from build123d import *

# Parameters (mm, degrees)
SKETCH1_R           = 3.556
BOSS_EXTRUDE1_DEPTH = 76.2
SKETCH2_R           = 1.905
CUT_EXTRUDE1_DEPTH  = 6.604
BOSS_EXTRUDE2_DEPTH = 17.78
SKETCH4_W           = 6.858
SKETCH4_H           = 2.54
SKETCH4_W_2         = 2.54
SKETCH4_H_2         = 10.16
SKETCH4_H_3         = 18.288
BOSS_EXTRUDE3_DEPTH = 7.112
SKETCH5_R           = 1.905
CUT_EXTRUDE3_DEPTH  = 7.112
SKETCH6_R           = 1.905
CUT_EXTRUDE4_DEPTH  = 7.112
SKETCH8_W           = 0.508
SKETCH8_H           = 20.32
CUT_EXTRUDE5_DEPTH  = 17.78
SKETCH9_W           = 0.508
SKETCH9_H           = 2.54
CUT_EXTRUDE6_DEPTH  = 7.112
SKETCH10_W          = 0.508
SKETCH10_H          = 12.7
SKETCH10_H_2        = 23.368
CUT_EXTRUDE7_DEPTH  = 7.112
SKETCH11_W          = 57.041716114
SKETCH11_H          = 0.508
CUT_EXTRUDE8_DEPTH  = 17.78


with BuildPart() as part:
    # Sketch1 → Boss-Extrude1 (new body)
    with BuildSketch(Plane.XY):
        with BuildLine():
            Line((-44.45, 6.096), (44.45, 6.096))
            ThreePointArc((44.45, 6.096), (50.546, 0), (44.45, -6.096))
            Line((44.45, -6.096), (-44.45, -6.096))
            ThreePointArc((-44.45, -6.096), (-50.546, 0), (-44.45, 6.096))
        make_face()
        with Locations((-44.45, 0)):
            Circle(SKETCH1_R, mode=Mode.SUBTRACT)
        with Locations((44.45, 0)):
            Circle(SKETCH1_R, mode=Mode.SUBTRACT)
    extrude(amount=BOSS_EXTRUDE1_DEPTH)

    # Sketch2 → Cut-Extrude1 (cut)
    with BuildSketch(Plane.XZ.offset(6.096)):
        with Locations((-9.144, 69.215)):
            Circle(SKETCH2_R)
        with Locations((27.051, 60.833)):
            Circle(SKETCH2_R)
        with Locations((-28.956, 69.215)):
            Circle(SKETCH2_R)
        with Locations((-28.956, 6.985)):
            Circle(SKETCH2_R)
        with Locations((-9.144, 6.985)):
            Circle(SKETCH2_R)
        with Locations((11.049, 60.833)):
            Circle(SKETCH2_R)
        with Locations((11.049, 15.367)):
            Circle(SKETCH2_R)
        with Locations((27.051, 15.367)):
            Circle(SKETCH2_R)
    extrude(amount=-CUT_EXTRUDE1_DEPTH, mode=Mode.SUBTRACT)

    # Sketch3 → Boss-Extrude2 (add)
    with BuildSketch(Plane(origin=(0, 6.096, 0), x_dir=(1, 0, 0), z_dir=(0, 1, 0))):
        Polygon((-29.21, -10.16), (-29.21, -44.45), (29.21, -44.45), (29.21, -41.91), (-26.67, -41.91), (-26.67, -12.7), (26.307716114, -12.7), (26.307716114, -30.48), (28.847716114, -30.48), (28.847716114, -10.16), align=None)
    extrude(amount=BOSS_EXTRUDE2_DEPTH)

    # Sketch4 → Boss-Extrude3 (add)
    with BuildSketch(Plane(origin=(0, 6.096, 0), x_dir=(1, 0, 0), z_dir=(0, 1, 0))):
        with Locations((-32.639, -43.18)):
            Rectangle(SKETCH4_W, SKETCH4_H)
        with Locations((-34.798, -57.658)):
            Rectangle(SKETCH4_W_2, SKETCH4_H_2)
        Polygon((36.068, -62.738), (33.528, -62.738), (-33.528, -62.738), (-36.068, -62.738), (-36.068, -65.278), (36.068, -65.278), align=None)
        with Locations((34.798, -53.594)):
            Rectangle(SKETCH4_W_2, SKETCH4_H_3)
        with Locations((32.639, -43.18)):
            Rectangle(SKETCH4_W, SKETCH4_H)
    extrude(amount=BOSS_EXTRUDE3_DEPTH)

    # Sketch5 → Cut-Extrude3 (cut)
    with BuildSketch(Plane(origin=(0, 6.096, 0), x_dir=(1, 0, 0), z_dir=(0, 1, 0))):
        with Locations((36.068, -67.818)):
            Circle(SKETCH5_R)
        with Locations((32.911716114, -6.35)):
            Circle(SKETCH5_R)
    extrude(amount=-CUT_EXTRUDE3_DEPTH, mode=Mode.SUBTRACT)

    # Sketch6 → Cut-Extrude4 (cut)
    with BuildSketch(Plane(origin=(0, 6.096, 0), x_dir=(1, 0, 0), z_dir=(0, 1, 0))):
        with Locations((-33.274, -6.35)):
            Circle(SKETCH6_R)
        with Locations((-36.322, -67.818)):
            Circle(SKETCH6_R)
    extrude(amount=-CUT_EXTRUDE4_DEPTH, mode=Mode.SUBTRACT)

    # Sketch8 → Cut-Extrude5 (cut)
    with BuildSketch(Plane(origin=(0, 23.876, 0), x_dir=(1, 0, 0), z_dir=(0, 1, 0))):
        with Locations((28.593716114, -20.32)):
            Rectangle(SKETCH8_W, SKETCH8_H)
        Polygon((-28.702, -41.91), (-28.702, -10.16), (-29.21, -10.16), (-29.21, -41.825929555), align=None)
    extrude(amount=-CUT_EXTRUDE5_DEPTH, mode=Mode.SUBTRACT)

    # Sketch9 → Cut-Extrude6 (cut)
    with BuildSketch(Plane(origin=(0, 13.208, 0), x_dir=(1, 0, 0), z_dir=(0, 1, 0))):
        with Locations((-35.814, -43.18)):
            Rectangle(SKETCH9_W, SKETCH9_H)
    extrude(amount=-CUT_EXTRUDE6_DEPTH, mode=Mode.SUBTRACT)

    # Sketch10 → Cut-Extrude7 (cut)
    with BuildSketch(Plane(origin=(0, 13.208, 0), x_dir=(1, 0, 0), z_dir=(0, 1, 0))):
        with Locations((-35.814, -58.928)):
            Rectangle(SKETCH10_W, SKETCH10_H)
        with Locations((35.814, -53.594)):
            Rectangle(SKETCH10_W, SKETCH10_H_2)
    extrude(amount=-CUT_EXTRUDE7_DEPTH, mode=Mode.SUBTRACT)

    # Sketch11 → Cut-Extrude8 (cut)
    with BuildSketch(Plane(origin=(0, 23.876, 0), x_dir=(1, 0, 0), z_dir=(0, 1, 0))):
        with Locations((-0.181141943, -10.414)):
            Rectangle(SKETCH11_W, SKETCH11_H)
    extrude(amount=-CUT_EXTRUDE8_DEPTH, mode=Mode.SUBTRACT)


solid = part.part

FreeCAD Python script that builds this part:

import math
import FreeCAD as App
import Part
import Sketcher
Q = App.Units.Quantity


def add_polygon(sketch, points):
    """Adds a closed chain of lines whose ends are joined by coincident constraints."""
    first, n = sketch.GeometryCount, len(points)
    for a, b in zip(points, points[1:] + points[:1]):
        sketch.addGeometry(Part.LineSegment(App.Vector(*a, 0), App.Vector(*b, 0)), False)
    for i in range(n):
        sketch.addConstraint(Sketcher.Constraint("Coincident", first + i, 2, first + (i + 1) % n, 1))

doc = App.newDocument("Part")
body = doc.addObject("PartDesign::Body", "Body")

# Sketch on XY plane
sketch1 = body.newObject("Sketcher::SketchObject", "Sketch")
sketch1.AttachmentSupport = (doc.getObject("XY_Plane"), [""])
sketch1.MapMode = "FlatFace"
sketch1.addGeometry(Part.LineSegment(App.Vector(44.5, 6.1, 0), App.Vector(-44.5, 6.1, 0)), False)
sketch1.addGeometry(Part.ArcOfCircle(Part.Circle(App.Vector(-44.5, 0, 0), App.Vector(0, 0, 1), 6.1), math.radians(90), math.radians(270)), False)
sketch1.addGeometry(Part.LineSegment(App.Vector(-44.5, -6.1, 0), App.Vector(44.5, -6.1, 0)), False)
sketch1.addGeometry(Part.ArcOfCircle(Part.Circle(App.Vector(44.5, 0, 0), App.Vector(0, 0, 1), 6.1), math.radians(-90), math.radians(90)), False)
sketch1.addGeometry(Part.Circle(App.Vector(44.5, 0, 0), App.Vector(0, 0, 1), 3.6), False)
sketch1.addGeometry(Part.Circle(App.Vector(-44.5, 0, 0), App.Vector(0, 0, 1), 3.6), False)
sketch1.addConstraint(Sketcher.Constraint("Tangent", 0, 2, 1, 1))
sketch1.addConstraint(Sketcher.Constraint("Tangent", 1, 2, 2, 1))
sketch1.addConstraint(Sketcher.Constraint("Tangent", 2, 2, 3, 1))
sketch1.addConstraint(Sketcher.Constraint("Tangent", 3, 2, 0, 1))
sketch1.addConstraint(Sketcher.Constraint("Horizontal", 0))
sketch1.addConstraint(Sketcher.Constraint("Horizontal", 2))
sketch1.addConstraint(Sketcher.Constraint("Coincident", 4, 3, 3, 3))
sketch1.addConstraint(Sketcher.Constraint("Coincident", 5, 3, 1, 3))
sketch1.addConstraint(Sketcher.Constraint("Equal", 4, 5))
sketch1.addConstraint(Sketcher.Constraint("Symmetric", 1, 3, 3, 3, -1, 1))
sketch1.addConstraint(Sketcher.Constraint("Diameter", 4, Q("0.28 in")))
sketch1.addConstraint(Sketcher.Constraint("Radius", 1, Q("0.24 in")))
sketch1.addConstraint(Sketcher.Constraint("DistanceX", 0, 2, 0, 1, Q("3.5 in")))
pad1 = body.newObject("PartDesign::Pad", "Pad")
pad1.Profile = sketch1
pad1.Length = Q("3 in")

# Sketch on XZ plane
sketch2 = body.newObject("Sketcher::SketchObject", "Sketch001")
sketch2.AttachmentSupport = (doc.getObject("XZ_Plane"), [""])
sketch2.MapMode = "FlatFace"
sketch2.AttachmentOffset = App.Placement(App.Vector(0, 0, 0.24 * 25.4), App.Rotation())
sketch2.addGeometry(Part.Circle(App.Vector(-9.1, 69.2, 0), App.Vector(0, 0, 1), 1.9), False)
sketch2.addGeometry(Part.Circle(App.Vector(27.1, 60.8, 0), App.Vector(0, 0, 1), 1.9), False)
sketch2.addGeometry(Part.Circle(App.Vector(-29, 69.2, 0), App.Vector(0, 0, 1), 1.9), False)
sketch2.addGeometry(Part.Circle(App.Vector(-29, 7, 0), App.Vector(0, 0, 1), 1.9), False)
sketch2.addGeometry(Part.Circle(App.Vector(-9.1, 7, 0), App.Vector(0, 0, 1), 1.9), False)
sketch2.addGeometry(Part.Circle(App.Vector(11, 60.8, 0), App.Vector(0, 0, 1), 1.9), False)
sketch2.addGeometry(Part.Circle(App.Vector(11, 15.4, 0), App.Vector(0, 0, 1), 1.9), False)
sketch2.addGeometry(Part.Circle(App.Vector(27.1, 15.4, 0), App.Vector(0, 0, 1), 1.9), False)
sketch2.addConstraint(Sketcher.Constraint("Equal", 0, 1))
sketch2.addConstraint(Sketcher.Constraint("Equal", 1, 2))
sketch2.addConstraint(Sketcher.Constraint("Equal", 2, 3))
sketch2.addConstraint(Sketcher.Constraint("Equal", 3, 4))
sketch2.addConstraint(Sketcher.Constraint("Equal", 4, 5))
sketch2.addConstraint(Sketcher.Constraint("Equal", 5, 6))
sketch2.addConstraint(Sketcher.Constraint("Equal", 6, 7))
sketch2.addConstraint(Sketcher.Constraint("Horizontal", 0, 3, 2, 3))
sketch2.addConstraint(Sketcher.Constraint("Horizontal", 3, 3, 4, 3))
sketch2.addConstraint(Sketcher.Constraint("Horizontal", 1, 3, 5, 3))
sketch2.addConstraint(Sketcher.Constraint("Horizontal", 6, 3, 7, 3))
sketch2.addConstraint(Sketcher.Constraint("Vertical", 2, 3, 3, 3))
sketch2.addConstraint(Sketcher.Constraint("Vertical", 0, 3, 4, 3))
sketch2.addConstraint(Sketcher.Constraint("Vertical", 5, 3, 6, 3))
sketch2.addConstraint(Sketcher.Constraint("Vertical", 1, 3, 7, 3))
sketch2.addConstraint(Sketcher.Constraint("Diameter", 0, Q("0.15 in")))
sketch2.addConstraint(Sketcher.Constraint("DistanceX", 0, 3, -1, 1, Q("0.36 in")))
sketch2.addConstraint(Sketcher.Constraint("DistanceX", 2, 3, -1, 1, Q("1.14 in")))
sketch2.addConstraint(Sketcher.Constraint("DistanceY", 1, 3, 0, 3, Q("0.33 in")))
sketch2.addConstraint(Sketcher.Constraint("DistanceY", 3, 3, 2, 3, Q("2.45 in")))
sketch2.addConstraint(Sketcher.Constraint("DistanceX", 5, 3, 1, 3, Q("0.63 in")))
sketch2.addConstraint(Sketcher.Constraint("DistanceY", 4, 3, 6, 3, Q("0.33 in")))
sketch2.addConstraint(Sketcher.Constraint("DistanceY", -1, 1, 0, 3, Q("2.725 in")))
sketch2.addConstraint(Sketcher.Constraint("DistanceX", -1, 1, 1, 3, Q("1.065 in")))
pocket1 = body.newObject("PartDesign::Pocket", "Pocket")
pocket1.Profile = sketch2
pocket1.Length = Q("0.26 in")

# Sketch on XZ plane
sketch3 = body.newObject("Sketcher::SketchObject", "Sketch002")
sketch3.AttachmentSupport = (doc.getObject("XZ_Plane"), [""])
sketch3.MapMode = "FlatFace"
sketch3.AttachmentOffset = App.Placement(App.Vector(0, 0, -0.24 * 25.4), App.Rotation())
add_polygon(sketch3, [(-29.2, 10.2), (-29.2, 44.5), (29.2, 44.5), (29.2, 41.9), (-26.7, 41.9), (-26.7, 12.7), (26.3, 12.7), (26.3, 30.5), (28.8, 30.5), (28.8, 10.2)])  # lines 0-9
sketch3.addConstraint(Sketcher.Constraint("Vertical", 0))
sketch3.addConstraint(Sketcher.Constraint("Horizontal", 1))
sketch3.addConstraint(Sketcher.Constraint("Vertical", 2))
sketch3.addConstraint(Sketcher.Constraint("Horizontal", 3))
sketch3.addConstraint(Sketcher.Constraint("Vertical", 4))
sketch3.addConstraint(Sketcher.Constraint("Horizontal", 5))
sketch3.addConstraint(Sketcher.Constraint("Vertical", 6))
sketch3.addConstraint(Sketcher.Constraint("Horizontal", 7))
sketch3.addConstraint(Sketcher.Constraint("Vertical", 8))
sketch3.addConstraint(Sketcher.Constraint("Horizontal", 9))
sketch3.addConstraint(Sketcher.Constraint("Equal", 7, 2))
sketch3.addConstraint(Sketcher.Constraint("DistanceX", 1, 1, 1, 2, Q("2.3 in")))
sketch3.addConstraint(Sketcher.Constraint("DistanceX", 3, 2, 3, 1, Q("2.2 in")))
sketch3.addConstraint(Sketcher.Constraint("DistanceX", 7, 1, 7, 2, Q("0.1 in")))
sketch3.addConstraint(Sketcher.Constraint("DistanceY", 6, 1, 6, 2, Q("0.7 in")))
sketch3.addConstraint(Sketcher.Constraint("DistanceY", 8, 2, 8, 1, Q("0.8 in")))
sketch3.addConstraint(Sketcher.Constraint("DistanceY", 0, 1, 0, 2, Q("1.35 in")))
sketch3.addConstraint(Sketcher.Constraint("DistanceY", -1, 1, 4, 2, Q("0.5 in")))
sketch3.addConstraint(Sketcher.Constraint("DistanceX", 0, 2, -1, 1, Q("1.15 in")))
sketch3.addConstraint(Sketcher.Constraint("DistanceX", 5, 1, 5, 2, Q("52.977716 mm")))
pad2 = body.newObject("PartDesign::Pad", "Pad001")
pad2.Profile = sketch3
pad2.Length = Q("0.7 in")
pad2.Reversed = True

# Sketch on XZ plane
sketch4 = body.newObject("Sketcher::SketchObject", "Sketch003")
sketch4.AttachmentSupport = (doc.getObject("XZ_Plane"), [""])
sketch4.MapMode = "FlatFace"
sketch4.AttachmentOffset = App.Placement(App.Vector(0, 0, -0.24 * 25.4), App.Rotation())
add_polygon(sketch4, [(-36.1, 41.9), (-36.1, 44.5), (-29.2, 44.5), (-29.2, 41.9)])  # lines 0-3
add_polygon(sketch4, [(-36.1, 52.6), (-36.1, 65.3), (36.1, 65.3), (36.1, 41.9), (29.2, 41.9), (29.2, 44.5), (33.5, 44.5), (33.5, 62.7), (-33.5, 62.7), (-33.5, 52.6)])  # lines 4-13
sketch4.addConstraint(Sketcher.Constraint("Vertical", 0))
sketch4.addConstraint(Sketcher.Constraint("Horizontal", 1))
sketch4.addConstraint(Sketcher.Constraint("Vertical", 2))
sketch4.addConstraint(Sketcher.Constraint("Horizontal", 3))
sketch4.addConstraint(Sketcher.Constraint("Vertical", 4))
sketch4.addConstraint(Sketcher.Constraint("Horizontal", 5))
sketch4.addConstraint(Sketcher.Constraint("Vertical", 6))
sketch4.addConstraint(Sketcher.Constraint("Horizontal", 7))
sketch4.addConstraint(Sketcher.Constraint("Vertical", 8))
sketch4.addConstraint(Sketcher.Constraint("Horizontal", 9))
sketch4.addConstraint(Sketcher.Constraint("Vertical", 10))
sketch4.addConstraint(Sketcher.Constraint("Horizontal", 11))
sketch4.addConstraint(Sketcher.Constraint("Vertical", 12))
sketch4.addConstraint(Sketcher.Constraint("Horizontal", 13))
sketch4.addConstraint(Sketcher.Constraint("Symmetric", 3, 2, 6, 2, -2))
sketch4.addConstraint(Sketcher.Constraint("Symmetric", 1, 2, 8, 2, -2))
sketch4.addConstraint(Sketcher.Constraint("Vertical", 3, 2, 4, 2))
sketch4.addConstraint(Sketcher.Constraint("Equal", 13, 0))
sketch4.addConstraint(Sketcher.Constraint("DistanceX", 13, 2, 13, 1, Q("0.1 in")))
sketch4.addConstraint(Sketcher.Constraint("DistanceY", 4, 1, 4, 2, Q("0.5 in")))
sketch4.addConstraint(Sketcher.Constraint("DistanceY", 12, 2, 12, 1, Q("0.4 in")))
sketch4.addConstraint(Sketcher.Constraint("DistanceX", 1, 1, 1, 2, Q("0.27 in")))
sketch4.addConstraint(Sketcher.Constraint("DistanceX", 5, 1, 5, 2, Q("2.84 in")))
sketch4.addConstraint(Sketcher.Constraint("DistanceX", 9, 1, 9, 2, Q("0.17 in")))
sketch4.addConstraint(Sketcher.Constraint("DistanceY", 6, 2, 6, 1, Q("0.92 in")))
sketch4.addConstraint(Sketcher.Constraint("DistanceY", -1, 1, 0, 2, Q("1.75 in")))
pad3 = body.newObject("PartDesign::Pad", "Pad002")
pad3.Profile = sketch4
pad3.Length = Q("0.28 in")
pad3.Reversed = True

# Sketch on XZ plane
sketch5 = body.newObject("Sketcher::SketchObject", "Sketch004")
sketch5.AttachmentSupport = (doc.getObject("XZ_Plane"), [""])
sketch5.MapMode = "FlatFace"
sketch5.AttachmentOffset = App.Placement(App.Vector(0, 0, -0.24 * 25.4), App.Rotation())
sketch5.addGeometry(Part.Circle(App.Vector(36.1, 67.8, 0), App.Vector(0, 0, 1), 1.9), False)
sketch5.addGeometry(Part.Circle(App.Vector(32.9, 6.3, 0), App.Vector(0, 0, 1), 1.9), False)
sketch5.addConstraint(Sketcher.Constraint("Equal", 0, 1))
sketch5.addConstraint(Sketcher.Constraint("Diameter", 0, Q("0.15 in")))
sketch5.addConstraint(Sketcher.Constraint("DistanceX", -1, 1, 0, 3, Q("1.42 in")))
sketch5.addConstraint(Sketcher.Constraint("DistanceY", -1, 1, 0, 3, Q("2.67 in")))
sketch5.addConstraint(Sketcher.Constraint("DistanceY", -1, 1, 1, 3, Q("0.25 in")))
sketch5.addConstraint(Sketcher.Constraint("DistanceX", -1, 1, 1, 3, Q("32.911716 mm")))
pocket2 = body.newObject("PartDesign::Pocket", "Pocket001")
pocket2.Profile = sketch5
pocket2.Length = Q("0.28 in")
pocket2.Reversed = True

# Sketch on XZ plane
sketch6 = body.newObject("Sketcher::SketchObject", "Sketch005")
sketch6.AttachmentSupport = (doc.getObject("XZ_Plane"), [""])
sketch6.MapMode = "FlatFace"
sketch6.AttachmentOffset = App.Placement(App.Vector(0, 0, -0.24 * 25.4), App.Rotation())
sketch6.addGeometry(Part.Circle(App.Vector(-33.3, 6.3, 0), App.Vector(0, 0, 1), 1.9), False)
sketch6.addGeometry(Part.Circle(App.Vector(-36.3, 67.8, 0), App.Vector(0, 0, 1), 1.9), False)
sketch6.addConstraint(Sketcher.Constraint("Equal", 0, 1))
sketch6.addConstraint(Sketcher.Constraint("Diameter", 0, Q("0.15 in")))
sketch6.addConstraint(Sketcher.Constraint("DistanceX", 0, 3, -1, 1, Q("1.31 in")))
sketch6.addConstraint(Sketcher.Constraint("DistanceY", -1, 1, 0, 3, Q("0.25 in")))
sketch6.addConstraint(Sketcher.Constraint("DistanceX", 1, 3, -1, 1, Q("1.43 in")))
sketch6.addConstraint(Sketcher.Constraint("DistanceY", -1, 1, 1, 3, Q("2.67 in")))
pocket3 = body.newObject("PartDesign::Pocket", "Pocket002")
pocket3.Profile = sketch6
pocket3.Length = Q("0.28 in")
pocket3.Reversed = True

# Sketch on XZ plane
sketch7 = body.newObject("Sketcher::SketchObject", "Sketch006")
sketch7.AttachmentSupport = (doc.getObject("XZ_Plane"), [""])
sketch7.MapMode = "FlatFace"
sketch7.AttachmentOffset = App.Placement(App.Vector(0, 0, -0.94 * 25.4), App.Rotation())
add_polygon(sketch7, [(28.3, 10.2), (28.3, 30.5), (28.8, 30.5), (28.8, 10.2)])  # lines 0-3
add_polygon(sketch7, [(-28.7, 41.9), (-28.7, 10.2), (-29.2, 10.2), (-29.2, 41.8)])  # lines 4-7
sketch7.addConstraint(Sketcher.Constraint("Vertical", 0))
sketch7.addConstraint(Sketcher.Constraint("Horizontal", 1))
sketch7.addConstraint(Sketcher.Constraint("Vertical", 2))
sketch7.addConstraint(Sketcher.Constraint("Horizontal", 3))
sketch7.addConstraint(Sketcher.Constraint("Vertical", 4))
sketch7.addConstraint(Sketcher.Constraint("Horizontal", 5))
sketch7.addConstraint(Sketcher.Constraint("Vertical", 6))
sketch7.addConstraint(Sketcher.Constraint("Horizontal", 3, 2, 4, 2))
sketch7.addConstraint(Sketcher.Constraint("Equal", 3, 5))
sketch7.addConstraint(Sketcher.Constraint("DistanceY", 0, 1, 0, 2, Q("0.8 in")))
sketch7.addConstraint(Sketcher.Constraint("DistanceX", 1, 1, 1, 2, Q("0.02 in")))
sketch7.addConstraint(Sketcher.Constraint("DistanceY", 4, 2, 4, 1, Q("1.25 in")))
sketch7.addConstraint(Sketcher.Constraint("DistanceY", -1, 1, 0, 2, Q("1.2 in")))
sketch7.addConstraint(Sketcher.Constraint("DistanceX", 4, 2, -1, 1, Q("1.13 in")))
sketch7.addConstraint(Sketcher.Constraint("DistanceY", 6, 1, 6, 2, Q("31.66593 mm")))
sketch7.addConstraint(Sketcher.Constraint("DistanceX", -1, 1, 0, 2, Q("28.339716 mm")))
pocket4 = body.newObject("PartDesign::Pocket", "Pocket003")
pocket4.Profile = sketch7
pocket4.Length = Q("0.7 in")
pocket4.Reversed = True

# Sketch on XZ plane
sketch8 = body.newObject("Sketcher::SketchObject", "Sketch007")
sketch8.AttachmentSupport = (doc.getObject("XZ_Plane"), [""])
sketch8.MapMode = "FlatFace"
sketch8.AttachmentOffset = App.Placement(App.Vector(0, 0, -0.52 * 25.4), App.Rotation())
add_polygon(sketch8, [(-36.1, 41.9), (-36.1, 44.5), (-35.6, 44.5), (-35.6, 41.9)])  # lines 0-3
sketch8.addConstraint(Sketcher.Constraint("Vertical", 0))
sketch8.addConstraint(Sketcher.Constraint("Horizontal", 1))
sketch8.addConstraint(Sketcher.Constraint("Vertical", 2))
sketch8.addConstraint(Sketcher.Constraint("Horizontal", 3))
sketch8.addConstraint(Sketcher.Constraint("DistanceY", 0, 1, 0, 2, Q("0.1 in")))
sketch8.addConstraint(Sketcher.Constraint("DistanceX", 1, 1, 1, 2, Q("0.02 in")))
sketch8.addConstraint(Sketcher.Constraint("DistanceX", 1, 2, -1, 1, Q("1.4 in")))
sketch8.addConstraint(Sketcher.Constraint("DistanceY", -1, 1, 0, 2, Q("1.75 in")))
pocket5 = body.newObject("PartDesign::Pocket", "Pocket004")
pocket5.Profile = sketch8
pocket5.Length = Q("0.28 in")
pocket5.Reversed = True

# Sketch on XZ plane
sketch9 = body.newObject("Sketcher::SketchObject", "Sketch008")
sketch9.AttachmentSupport = (doc.getObject("XZ_Plane"), [""])
sketch9.MapMode = "FlatFace"
sketch9.AttachmentOffset = App.Placement(App.Vector(0, 0, -0.52 * 25.4), App.Rotation())
add_polygon(sketch9, [(-36.1, 52.6), (-36.1, 65.3), (-35.6, 65.3), (-35.6, 52.6)])  # lines 0-3
add_polygon(sketch9, [(35.6, 41.9), (35.6, 65.3), (36.1, 65.3), (36.1, 41.9)])  # lines 4-7
sketch9.addConstraint(Sketcher.Constraint("Vertical", 0))
sketch9.addConstraint(Sketcher.Constraint("Horizontal", 1))
sketch9.addConstraint(Sketcher.Constraint("Vertical", 2))
sketch9.addConstraint(Sketcher.Constraint("Horizontal", 3))
sketch9.addConstraint(Sketcher.Constraint("Vertical", 4))
sketch9.addConstraint(Sketcher.Constraint("Horizontal", 5))
sketch9.addConstraint(Sketcher.Constraint("Vertical", 6))
sketch9.addConstraint(Sketcher.Constraint("Horizontal", 7))
sketch9.addConstraint(Sketcher.Constraint("Symmetric", 1, 2, 4, 2, -2))
sketch9.addConstraint(Sketcher.Constraint("Equal", 3, 5))
sketch9.addConstraint(Sketcher.Constraint("DistanceY", 0, 1, 0, 2, Q("0.5 in")))
sketch9.addConstraint(Sketcher.Constraint("DistanceX", 1, 1, 1, 2, Q("0.02 in")))
sketch9.addConstraint(Sketcher.Constraint("DistanceY", 4, 1, 4, 2, Q("0.92 in")))
sketch9.addConstraint(Sketcher.Constraint("DistanceX", 1, 2, -1, 1, Q("1.4 in")))
sketch9.addConstraint(Sketcher.Constraint("DistanceY", -1, 1, 0, 2, Q("2.57 in")))
pocket6 = body.newObject("PartDesign::Pocket", "Pocket005")
pocket6.Profile = sketch9
pocket6.Length = Q("0.28 in")
pocket6.Reversed = True

# Sketch on XZ plane
sketch10 = body.newObject("Sketcher::SketchObject", "Sketch009")
sketch10.AttachmentSupport = (doc.getObject("XZ_Plane"), [""])
sketch10.MapMode = "FlatFace"
sketch10.AttachmentOffset = App.Placement(App.Vector(0, 0, -0.94 * 25.4), App.Rotation())
add_polygon(sketch10, [(-28.7, 10.2), (-28.7, 10.7), (28.3, 10.7), (28.3, 10.2)])  # lines 0-3
sketch10.addConstraint(Sketcher.Constraint("Vertical", 0))
sketch10.addConstraint(Sketcher.Constraint("Horizontal", 1))
sketch10.addConstraint(Sketcher.Constraint("Vertical", 2))
sketch10.addConstraint(Sketcher.Constraint("Horizontal", 3))
sketch10.addConstraint(Sketcher.Constraint("DistanceY", 0, 1, 0, 2, Q("0.02 in")))
sketch10.addConstraint(Sketcher.Constraint("DistanceY", -1, 1, 2, 2, Q("0.4 in")))
sketch10.addConstraint(Sketcher.Constraint("DistanceX", 0, 2, -1, 1, Q("1.13 in")))
sketch10.addConstraint(Sketcher.Constraint("DistanceX", 1, 1, 1, 2, Q("57.041716 mm")))
pocket7 = body.newObject("PartDesign::Pocket", "Pocket006")
pocket7.Profile = sketch10
pocket7.Length = Q("0.7 in")
pocket7.Reversed = True

doc.recompute()
